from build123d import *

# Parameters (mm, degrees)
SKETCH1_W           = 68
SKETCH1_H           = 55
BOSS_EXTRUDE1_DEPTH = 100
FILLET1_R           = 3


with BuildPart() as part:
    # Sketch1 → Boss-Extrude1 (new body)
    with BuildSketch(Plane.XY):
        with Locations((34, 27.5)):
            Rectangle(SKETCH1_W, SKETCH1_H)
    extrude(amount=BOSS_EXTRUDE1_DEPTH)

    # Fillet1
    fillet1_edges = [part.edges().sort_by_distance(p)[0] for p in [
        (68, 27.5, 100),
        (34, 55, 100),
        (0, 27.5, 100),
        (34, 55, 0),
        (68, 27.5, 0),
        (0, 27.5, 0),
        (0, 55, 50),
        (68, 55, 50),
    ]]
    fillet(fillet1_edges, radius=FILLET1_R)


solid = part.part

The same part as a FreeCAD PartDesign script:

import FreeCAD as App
import Part
import Sketcher

V = App.Vector
Q = App.Units.Quantity


def edges_at(feature, points):
    """Names of the edges that pass closest to the given points."""
    edges = feature.Shape.Edges
    near = lambda p: min(range(len(edges)), key=lambda i: edges[i].distToShape(Part.Vertex(*p))[0])
    return sorted({f"Edge{near(p) + 1}" for p in points})


def add_polygon(sketch, points):
    """Adds a closed chain of lines whose ends are joined by coincident constraints."""
    first, n = sketch.GeometryCount, len(points)
    for a, b in zip(points, points[1:] + points[:1]):
        sketch.addGeometry(Part.LineSegment(App.Vector(*a, 0), App.Vector(*b, 0)), False)
    for i in range(n):
        sketch.addConstraint(Sketcher.Constraint("Coincident", first + i, 2, first + (i + 1) % n, 1))

doc = App.newDocument("Part")
params = doc.addObject("Spreadsheet::Sheet", "Params")
for row, (alias, value) in enumerate([
    ("sketch1_width", "68 mm"),
    ("sketch1_height", "55 mm"),
    ("pad1_length", "100 mm"),
    ("fillet_radius", "3 mm"),
], start=1):
    params.set(f"A{row}", alias)
    params.set(f"B{row}", "=" + value)
    params.setAlias(f"B{row}", alias)

body = doc.addObject("PartDesign::Body", "Body")

# Sketch on XY plane
sketch1 = body.newObject("Sketcher::SketchObject", "Sketch")
sketch1.AttachmentSupport = (doc.getObject("XY_Plane"), [""])
sketch1.MapMode = "FlatFace"
add_polygon(sketch1, [(0, 55), (0, 0), (68, 0), (68, 55)])  # lines 0-3
sketch1.addConstraint([
    Sketcher.Constraint("Vertical", 0),
    Sketcher.Constraint("Horizontal", 1),
    Sketcher.Constraint("Vertical", 2),
    Sketcher.Constraint("Horizontal", 3),
    Sketcher.Constraint("Coincident", 0, 2, -1, 1),
    Sketcher.Constraint("DistanceX", 1, 1, 1, 2, Q("68 mm")),
    Sketcher.Constraint("DistanceY", 0, 2, 0, 1, Q("55 mm")),
])
sketch1.setExpression("Constraints[9]", "Params.sketch1_width")
sketch1.setExpression("Constraints[10]", "Params.sketch1_height")
pad1 = body.newObject("PartDesign::Pad", "Pad")
pad1.Profile = sketch1
pad1.setExpression("Length", "Params.pad1_length")
doc.recompute()

fillet = body.newObject("PartDesign::Fillet", "Fillet")
fillet.Base = (pad1, edges_at(pad1, [
    (68, 27.5, 100),
    (34, 55, 100),
    (0, 27.5, 100),
    (34, 55, 0),
    (68, 27.5, 0),
    (0, 27.5, 0),
    (0, 55, 50),
    (68, 55, 50),
]))
fillet.setExpression("Radius", "Params.fillet_radius")

doc.recompute()
